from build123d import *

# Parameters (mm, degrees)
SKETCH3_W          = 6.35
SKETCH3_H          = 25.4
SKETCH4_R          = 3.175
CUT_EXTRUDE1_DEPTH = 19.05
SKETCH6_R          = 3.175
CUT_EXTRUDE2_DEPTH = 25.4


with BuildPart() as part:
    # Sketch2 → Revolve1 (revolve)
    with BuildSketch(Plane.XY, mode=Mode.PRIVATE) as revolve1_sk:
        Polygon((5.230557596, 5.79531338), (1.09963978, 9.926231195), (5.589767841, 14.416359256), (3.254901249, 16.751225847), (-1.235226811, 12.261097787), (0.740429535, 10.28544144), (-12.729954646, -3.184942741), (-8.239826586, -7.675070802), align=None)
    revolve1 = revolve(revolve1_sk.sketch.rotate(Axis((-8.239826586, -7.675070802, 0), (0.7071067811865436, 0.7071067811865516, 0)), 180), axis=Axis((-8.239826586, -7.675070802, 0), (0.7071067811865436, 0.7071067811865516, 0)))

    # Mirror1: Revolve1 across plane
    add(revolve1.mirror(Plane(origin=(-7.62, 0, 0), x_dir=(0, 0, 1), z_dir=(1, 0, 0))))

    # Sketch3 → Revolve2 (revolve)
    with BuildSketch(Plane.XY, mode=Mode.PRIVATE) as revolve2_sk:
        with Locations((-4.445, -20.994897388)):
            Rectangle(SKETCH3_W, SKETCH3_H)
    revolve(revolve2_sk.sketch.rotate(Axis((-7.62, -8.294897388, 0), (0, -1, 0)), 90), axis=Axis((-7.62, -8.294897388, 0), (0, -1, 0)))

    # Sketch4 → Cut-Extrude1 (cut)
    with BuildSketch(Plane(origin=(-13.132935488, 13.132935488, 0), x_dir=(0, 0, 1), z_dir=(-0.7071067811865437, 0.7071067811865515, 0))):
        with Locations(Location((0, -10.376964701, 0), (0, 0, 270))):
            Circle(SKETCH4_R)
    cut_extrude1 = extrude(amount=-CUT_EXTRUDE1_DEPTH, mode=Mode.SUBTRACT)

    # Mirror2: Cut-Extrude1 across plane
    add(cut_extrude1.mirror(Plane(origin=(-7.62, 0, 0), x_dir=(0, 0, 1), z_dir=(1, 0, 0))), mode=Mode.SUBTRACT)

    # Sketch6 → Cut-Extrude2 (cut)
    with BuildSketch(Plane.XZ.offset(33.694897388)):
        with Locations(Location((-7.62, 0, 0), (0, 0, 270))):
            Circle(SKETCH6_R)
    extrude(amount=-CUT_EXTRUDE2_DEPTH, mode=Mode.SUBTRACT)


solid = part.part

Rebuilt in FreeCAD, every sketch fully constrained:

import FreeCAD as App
import Part
import Sketcher
Q = App.Units.Quantity


def add_polygon(sketch, points):
    """Adds a closed chain of lines whose ends are joined by coincident constraints."""
    first, n = sketch.GeometryCount, len(points)
    for a, b in zip(points, points[1:] + points[:1]):
        sketch.addGeometry(Part.LineSegment(App.Vector(*a, 0), App.Vector(*b, 0)), False)
    for i in range(n):
        sketch.addConstraint(Sketcher.Constraint("Coincident", first + i, 2, first + (i + 1) % n, 1))

doc = App.newDocument("Part")
params = doc.addObject("Spreadsheet::Sheet", "Params")
for row, (alias, value) in enumerate([
    ("sketch1_length", "1 in"),
    ("sketch1_length2", "0.23 in"),
    ("sketch1_length3", "0.25 in"),
    ("sketch1_length4", "0.13 in"),
    ("revolution_angle", "360 deg"),
    ("sketch2_height", "1 in"),
    ("sketch2_width", "0.25 in"),
    ("revolution2_angle", "360 deg"),
    ("sketch3_diameter", "0.25 in"),
    ("pocket1_length", "0.75 in"),
    ("sketch4_diameter", "0.25 in"),
    ("pocket2_length", "1 in"),
], start=1):
    params.set(f"A{row}", alias)
    params.set(f"B{row}", "=" + value)
    params.setAlias(f"B{row}", alias)

body = doc.addObject("PartDesign::Body", "Body")

# Sketch on XY plane
sketch1 = body.newObject("Sketcher::SketchObject", "Sketch")
sketch1.AttachmentSupport = (doc.getObject("XY_Plane"), [""])
sketch1.MapMode = "FlatFace"
add_polygon(sketch1, [(5.230558, 5.795313), (1.09964, 9.926231), (5.589768, 14.416359), (3.254901, 16.751226), (-1.235227, 12.261098), (0.74043, 10.285441), (-12.729955, -3.184943), (-8.239827, -7.675071)])  # lines 0-7
sketch1.addGeometry(Part.LineSegment(App.Vector(-8.239827, -7.675071, 0), App.Vector(9.720686, 10.285441, 0)), True)  # axis
sketch1.addConstraint([
    Sketcher.Constraint("Coincident", 8, 1, 6, 2),
    Sketcher.Constraint("Perpendicular", 0, 1),
    Sketcher.Constraint("Perpendicular", 1, 2),
    Sketcher.Constraint("Perpendicular", 2, 3),
    Sketcher.Constraint("Perpendicular", 3, 4),
    Sketcher.Constraint("Perpendicular", 4, 5),
    Sketcher.Constraint("Perpendicular", 5, 6),
    Sketcher.Constraint("Perpendicular", 6, 7),
    Sketcher.Constraint("Parallel", 7, 8),
    Sketcher.Constraint("Horizontal", 4, 2, 8, 2),
    Sketcher.Constraint("Equal", 1, 3),
    Sketcher.Constraint("Equal", 3, 6),
    Sketcher.Constraint("Distance", 8, Q("1 in")),
    Sketcher.Constraint("Angle", 0, Q("135 deg")),
    Sketcher.Constraint("Distance", 0, Q("0.23 in")),
    Sketcher.Constraint("Distance", 1, Q("0.25 in")),
    Sketcher.Constraint("Distance", 2, Q("0.13 in")),
    Sketcher.Constraint("DistanceX", -1, 1, 2, 2, 3.254901),
    Sketcher.Constraint("DistanceY", -1, 1, 0, 2, 9.926231),
])
sketch1.setExpression("Constraints[20]", "Params.sketch1_length")
sketch1.setExpression("Constraints[22]", "Params.sketch1_length2")
sketch1.setExpression("Constraints[23]", "Params.sketch1_length3")
sketch1.setExpression("Constraints[24]", "Params.sketch1_length4")
revolution = body.newObject("PartDesign::Revolution", "Revolution")
revolution.Profile = sketch1
revolution.ReferenceAxis = (sketch1, ["Axis0"])
revolution.setExpression("Angle", "Params.revolution_angle")
doc.recompute()

datumplane = body.newObject("PartDesign::Plane", "DatumPlane")
datumplane.AttachmentSupport = (doc.getObject("YZ_Plane"), [""])
datumplane.MapMode = "FlatFace"
datumplane.AttachmentOffset = App.Placement(App.Vector(0, 0, -0.3 * 25.4), App.Rotation())
mirrored = body.newObject("PartDesign::Mirrored", "Mirrored")
mirrored.Originals = [revolution]
mirrored.MirrorPlane = (datumplane, [""])
body.Tip = mirrored

# Sketch on XY plane
sketch2 = body.newObject("Sketcher::SketchObject", "Sketch001")
sketch2.AttachmentSupport = (doc.getObject("XY_Plane"), [""])
sketch2.MapMode = "FlatFace"
add_polygon(sketch2, [(-7.62, -8.294897), (-7.62, -33.694897), (-1.27, -33.694897), (-1.27, -8.294897)])  # lines 0-3
sketch2.addGeometry(Part.LineSegment(App.Vector(-7.62, -8.294897, 0), App.Vector(-7.62, -33.694897, 0)), True)  # axis
sketch2.addConstraint([
    Sketcher.Constraint("Vertical", 0),
    Sketcher.Constraint("Horizontal", 1),
    Sketcher.Constraint("Vertical", 2),
    Sketcher.Constraint("Horizontal", 3),
    Sketcher.Constraint("Vertical", 4),
    Sketcher.Constraint("Coincident", 4, 1, 3, 2),
    Sketcher.Constraint("Horizontal", 1, 2, 4, 2),
    Sketcher.Constraint("DistanceY", 0, 2, 0, 1, Q("1 in")),
    Sketcher.Constraint("DistanceX", 1, 1, 1, 2, Q("0.25 in")),
    Sketcher.Constraint("DistanceX", 0, 2, -1, 1, Q("0.3 in")),
    Sketcher.Constraint("DistanceY", 0, 2, -1, 1, 33.694897),
])
sketch2.setExpression("Constraints[11]", "Params.sketch2_height")
sketch2.setExpression("Constraints[12]", "Params.sketch2_width")
revolution2 = body.newObject("PartDesign::Revolution", "Revolution001")
revolution2.Profile = sketch2
revolution2.ReferenceAxis = (sketch2, ["Axis0"])
revolution2.setExpression("Angle", "Params.revolution2_angle")

# Sketch on an angled plane
sketch3 = body.newObject("Sketcher::SketchObject", "Sketch002")
sketch3.Placement = App.Placement(App.Vector(-13.132935, 13.132935, 0), App.Rotation(App.Vector(0, 0, 1), App.Vector(0.707106781, 0.707106781, 0), App.Vector(-0.707106781, 0.707106781, 0), "ZXY"))
sketch3.addGeometry(Part.Circle(App.Vector(0, -10.376965, 0), App.Vector(0, 0, 1), 3.175), False)
sketch3.addConstraint([
    Sketcher.Constraint("PointOnObject", 0, 3, -2),
    Sketcher.Constraint("Diameter", 0, Q("0.25 in")),
    Sketcher.Constraint("DistanceY", 0, 3, -1, 1, 10.376965),
])
sketch3.setExpression("Constraints[1]", "Params.sketch3_diameter")
pocket1 = body.newObject("PartDesign::Pocket", "Pocket")
pocket1.Profile = sketch3
pocket1.setExpression("Length", "Params.pocket1_length")
doc.recompute()

datumplane2 = body.newObject("PartDesign::Plane", "DatumPlane001")
datumplane2.AttachmentSupport = (doc.getObject("YZ_Plane"), [""])
datumplane2.MapMode = "FlatFace"
datumplane2.AttachmentOffset = App.Placement(App.Vector(0, 0, -0.3 * 25.4), App.Rotation())
mirrored2 = body.newObject("PartDesign::Mirrored", "Mirrored001")
mirrored2.Originals = [pocket1]
mirrored2.MirrorPlane = (datumplane2, [""])
body.Tip = mirrored2

# Sketch on XZ plane
sketch4 = body.newObject("Sketcher::SketchObject", "Sketch003")
sketch4.AttachmentSupport = (doc.getObject("XZ_Plane"), [""])
sketch4.MapMode = "FlatFace"
sketch4.AttachmentOffset = App.Placement(App.Vector(0, 0, 33.694897), App.Rotation())
sketch4.addGeometry(Part.Circle(App.Vector(-7.62, 0, 0), App.Vector(0, 0, 1), 3.175), False)
sketch4.addConstraint([
    Sketcher.Constraint("PointOnObject", 0, 3, -1),
    Sketcher.Constraint("Diameter", 0, Q("0.25 in")),
    Sketcher.Constraint("DistanceX", 0, 3, -1, 1, Q("0.3 in")),
])
sketch4.setExpression("Constraints[1]", "Params.sketch4_diameter")
pocket2 = body.newObject("PartDesign::Pocket", "Pocket001")
pocket2.Profile = sketch4
pocket2.setExpression("Length", "Params.pocket2_length")

doc.recompute()
